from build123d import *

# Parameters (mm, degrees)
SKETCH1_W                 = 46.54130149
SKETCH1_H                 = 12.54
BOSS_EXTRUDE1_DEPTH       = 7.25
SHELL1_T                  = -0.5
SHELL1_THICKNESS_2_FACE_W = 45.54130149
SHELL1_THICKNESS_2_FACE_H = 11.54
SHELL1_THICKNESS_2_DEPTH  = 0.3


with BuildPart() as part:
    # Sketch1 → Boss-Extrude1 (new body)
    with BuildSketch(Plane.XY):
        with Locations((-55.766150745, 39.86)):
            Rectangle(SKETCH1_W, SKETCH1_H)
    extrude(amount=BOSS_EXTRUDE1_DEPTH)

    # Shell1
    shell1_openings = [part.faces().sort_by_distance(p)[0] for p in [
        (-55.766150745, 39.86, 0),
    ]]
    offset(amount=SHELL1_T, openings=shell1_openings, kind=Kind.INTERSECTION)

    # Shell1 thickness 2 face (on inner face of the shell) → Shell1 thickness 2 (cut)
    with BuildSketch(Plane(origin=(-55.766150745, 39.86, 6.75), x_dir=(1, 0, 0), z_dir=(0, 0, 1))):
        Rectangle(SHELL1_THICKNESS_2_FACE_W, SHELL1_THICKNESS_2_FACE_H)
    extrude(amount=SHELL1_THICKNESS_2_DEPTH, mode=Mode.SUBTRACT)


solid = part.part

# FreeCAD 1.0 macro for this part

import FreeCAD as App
import Part
import Sketcher
Q = App.Units.Quantity


def faces_at(feature, points):
    """Names of the faces that lie closest to the given points."""
    faces = feature.Shape.Faces
    near = lambda p: min(range(len(faces)), key=lambda i: faces[i].distToShape(Part.Vertex(*p))[0])
    return sorted({f"Face{near(p) + 1}" for p in points})


def add_polygon(sketch, points):
    """Adds a closed chain of lines whose ends are joined by coincident constraints."""
    first, n = sketch.GeometryCount, len(points)
    for a, b in zip(points, points[1:] + points[:1]):
        sketch.addGeometry(Part.LineSegment(App.Vector(*a, 0), App.Vector(*b, 0)), False)
    for i in range(n):
        sketch.addConstraint(Sketcher.Constraint("Coincident", first + i, 2, first + (i + 1) % n, 1))

doc = App.newDocument("Part")
params = doc.addObject("Spreadsheet::Sheet", "Params")
for row, (alias, value) in enumerate([
    ("sketch1_height", "12.54 mm"),
    ("pad1_length", "7.25 mm"),
    ("thickness_wall", "0.5 mm"),
    ("sketch2_height", "11.54 mm"),
    ("pocket1_length", "0.3 mm"),
], start=1):
    params.set(f"A{row}", alias)
    params.set(f"B{row}", "=" + value)
    params.setAlias(f"B{row}", alias)

body = doc.addObject("PartDesign::Body", "Body")

sketch1 = body.newObject("Sketcher::SketchObject", "Sketch")
sketch1.AttachmentSupport = (doc.getObject("XY_Plane"), [""])
sketch1.MapMode = "FlatFace"
add_polygon(sketch1, [(-79.036801, 46.13), (-79.036801, 33.59), (-32.4955, 33.59), (-32.4955, 46.13)])
sketch1.addConstraint(Sketcher.Constraint("Vertical", 0))
sketch1.addConstraint(Sketcher.Constraint("Horizontal", 1))
sketch1.addConstraint(Sketcher.Constraint("Vertical", 2))
sketch1.addConstraint(Sketcher.Constraint("Horizontal", 3))
sketch1.addConstraint(Sketcher.Constraint("DistanceY", 0, 2, 0, 1, Q("12.54 mm")))
sketch1.addConstraint(Sketcher.Constraint("DistanceY", -1, 1, 0, 2, Q("33.59 mm")))
sketch1.addConstraint(Sketcher.Constraint("DistanceX", 1, 1, 1, 2, Q("46.541301 mm")))
sketch1.addConstraint(Sketcher.Constraint("DistanceX", 0, 2, -1, 1, Q("79.036801 mm")))
sketch1.setExpression("Constraints[8]", "Params.sketch1_height")
pad1 = body.newObject("PartDesign::Pad", "Pad")
pad1.Profile = sketch1
pad1.setExpression("Length", "Params.pad1_length")
doc.recompute()

thickness = body.newObject("PartDesign::Thickness", "Thickness")
thickness.Base = (pad1, faces_at(pad1, [(-55.766, 39.86, 0)]))
thickness.setExpression("Value", "Params.thickness_wall")
thickness.Reversed = True
thickness.Join = "Intersection"

sketch2 = body.newObject("Sketcher::SketchObject", "Sketch001")
sketch2.AttachmentSupport = (doc.getObject("XY_Plane"), [""])
sketch2.MapMode = "FlatFace"
sketch2.AttachmentOffset = App.Placement(App.Vector(0, 0, 6.75), App.Rotation())
add_polygon(sketch2, [(-78.536801, 45.63), (-78.536801, 34.09), (-32.9955, 34.09), (-32.9955, 45.63)])
sketch2.addConstraint(Sketcher.Constraint("Vertical", 0))
sketch2.addConstraint(Sketcher.Constraint("Horizontal", 1))
sketch2.addConstraint(Sketcher.Constraint("Vertical", 2))
sketch2.addConstraint(Sketcher.Constraint("Horizontal", 3))
sketch2.addConstraint(Sketcher.Constraint("DistanceY", 0, 2, 0, 1, Q("11.54 mm")))
sketch2.addConstraint(Sketcher.Constraint("DistanceY", -1, 1, 0, 2, Q("34.09 mm")))
sketch2.addConstraint(Sketcher.Constraint("DistanceX", 1, 1, 1, 2, Q("45.541301 mm")))
sketch2.addConstraint(Sketcher.Constraint("DistanceX", 0, 2, -1, 1, Q("78.536801 mm")))
sketch2.setExpression("Constraints[8]", "Params.sketch2_height")
pocket1 = body.newObject("PartDesign::Pocket", "Pocket")
pocket1.Profile = sketch2
pocket1.setExpression("Length", "Params.pocket1_length")
pocket1.Reversed = True

doc.recompute()
